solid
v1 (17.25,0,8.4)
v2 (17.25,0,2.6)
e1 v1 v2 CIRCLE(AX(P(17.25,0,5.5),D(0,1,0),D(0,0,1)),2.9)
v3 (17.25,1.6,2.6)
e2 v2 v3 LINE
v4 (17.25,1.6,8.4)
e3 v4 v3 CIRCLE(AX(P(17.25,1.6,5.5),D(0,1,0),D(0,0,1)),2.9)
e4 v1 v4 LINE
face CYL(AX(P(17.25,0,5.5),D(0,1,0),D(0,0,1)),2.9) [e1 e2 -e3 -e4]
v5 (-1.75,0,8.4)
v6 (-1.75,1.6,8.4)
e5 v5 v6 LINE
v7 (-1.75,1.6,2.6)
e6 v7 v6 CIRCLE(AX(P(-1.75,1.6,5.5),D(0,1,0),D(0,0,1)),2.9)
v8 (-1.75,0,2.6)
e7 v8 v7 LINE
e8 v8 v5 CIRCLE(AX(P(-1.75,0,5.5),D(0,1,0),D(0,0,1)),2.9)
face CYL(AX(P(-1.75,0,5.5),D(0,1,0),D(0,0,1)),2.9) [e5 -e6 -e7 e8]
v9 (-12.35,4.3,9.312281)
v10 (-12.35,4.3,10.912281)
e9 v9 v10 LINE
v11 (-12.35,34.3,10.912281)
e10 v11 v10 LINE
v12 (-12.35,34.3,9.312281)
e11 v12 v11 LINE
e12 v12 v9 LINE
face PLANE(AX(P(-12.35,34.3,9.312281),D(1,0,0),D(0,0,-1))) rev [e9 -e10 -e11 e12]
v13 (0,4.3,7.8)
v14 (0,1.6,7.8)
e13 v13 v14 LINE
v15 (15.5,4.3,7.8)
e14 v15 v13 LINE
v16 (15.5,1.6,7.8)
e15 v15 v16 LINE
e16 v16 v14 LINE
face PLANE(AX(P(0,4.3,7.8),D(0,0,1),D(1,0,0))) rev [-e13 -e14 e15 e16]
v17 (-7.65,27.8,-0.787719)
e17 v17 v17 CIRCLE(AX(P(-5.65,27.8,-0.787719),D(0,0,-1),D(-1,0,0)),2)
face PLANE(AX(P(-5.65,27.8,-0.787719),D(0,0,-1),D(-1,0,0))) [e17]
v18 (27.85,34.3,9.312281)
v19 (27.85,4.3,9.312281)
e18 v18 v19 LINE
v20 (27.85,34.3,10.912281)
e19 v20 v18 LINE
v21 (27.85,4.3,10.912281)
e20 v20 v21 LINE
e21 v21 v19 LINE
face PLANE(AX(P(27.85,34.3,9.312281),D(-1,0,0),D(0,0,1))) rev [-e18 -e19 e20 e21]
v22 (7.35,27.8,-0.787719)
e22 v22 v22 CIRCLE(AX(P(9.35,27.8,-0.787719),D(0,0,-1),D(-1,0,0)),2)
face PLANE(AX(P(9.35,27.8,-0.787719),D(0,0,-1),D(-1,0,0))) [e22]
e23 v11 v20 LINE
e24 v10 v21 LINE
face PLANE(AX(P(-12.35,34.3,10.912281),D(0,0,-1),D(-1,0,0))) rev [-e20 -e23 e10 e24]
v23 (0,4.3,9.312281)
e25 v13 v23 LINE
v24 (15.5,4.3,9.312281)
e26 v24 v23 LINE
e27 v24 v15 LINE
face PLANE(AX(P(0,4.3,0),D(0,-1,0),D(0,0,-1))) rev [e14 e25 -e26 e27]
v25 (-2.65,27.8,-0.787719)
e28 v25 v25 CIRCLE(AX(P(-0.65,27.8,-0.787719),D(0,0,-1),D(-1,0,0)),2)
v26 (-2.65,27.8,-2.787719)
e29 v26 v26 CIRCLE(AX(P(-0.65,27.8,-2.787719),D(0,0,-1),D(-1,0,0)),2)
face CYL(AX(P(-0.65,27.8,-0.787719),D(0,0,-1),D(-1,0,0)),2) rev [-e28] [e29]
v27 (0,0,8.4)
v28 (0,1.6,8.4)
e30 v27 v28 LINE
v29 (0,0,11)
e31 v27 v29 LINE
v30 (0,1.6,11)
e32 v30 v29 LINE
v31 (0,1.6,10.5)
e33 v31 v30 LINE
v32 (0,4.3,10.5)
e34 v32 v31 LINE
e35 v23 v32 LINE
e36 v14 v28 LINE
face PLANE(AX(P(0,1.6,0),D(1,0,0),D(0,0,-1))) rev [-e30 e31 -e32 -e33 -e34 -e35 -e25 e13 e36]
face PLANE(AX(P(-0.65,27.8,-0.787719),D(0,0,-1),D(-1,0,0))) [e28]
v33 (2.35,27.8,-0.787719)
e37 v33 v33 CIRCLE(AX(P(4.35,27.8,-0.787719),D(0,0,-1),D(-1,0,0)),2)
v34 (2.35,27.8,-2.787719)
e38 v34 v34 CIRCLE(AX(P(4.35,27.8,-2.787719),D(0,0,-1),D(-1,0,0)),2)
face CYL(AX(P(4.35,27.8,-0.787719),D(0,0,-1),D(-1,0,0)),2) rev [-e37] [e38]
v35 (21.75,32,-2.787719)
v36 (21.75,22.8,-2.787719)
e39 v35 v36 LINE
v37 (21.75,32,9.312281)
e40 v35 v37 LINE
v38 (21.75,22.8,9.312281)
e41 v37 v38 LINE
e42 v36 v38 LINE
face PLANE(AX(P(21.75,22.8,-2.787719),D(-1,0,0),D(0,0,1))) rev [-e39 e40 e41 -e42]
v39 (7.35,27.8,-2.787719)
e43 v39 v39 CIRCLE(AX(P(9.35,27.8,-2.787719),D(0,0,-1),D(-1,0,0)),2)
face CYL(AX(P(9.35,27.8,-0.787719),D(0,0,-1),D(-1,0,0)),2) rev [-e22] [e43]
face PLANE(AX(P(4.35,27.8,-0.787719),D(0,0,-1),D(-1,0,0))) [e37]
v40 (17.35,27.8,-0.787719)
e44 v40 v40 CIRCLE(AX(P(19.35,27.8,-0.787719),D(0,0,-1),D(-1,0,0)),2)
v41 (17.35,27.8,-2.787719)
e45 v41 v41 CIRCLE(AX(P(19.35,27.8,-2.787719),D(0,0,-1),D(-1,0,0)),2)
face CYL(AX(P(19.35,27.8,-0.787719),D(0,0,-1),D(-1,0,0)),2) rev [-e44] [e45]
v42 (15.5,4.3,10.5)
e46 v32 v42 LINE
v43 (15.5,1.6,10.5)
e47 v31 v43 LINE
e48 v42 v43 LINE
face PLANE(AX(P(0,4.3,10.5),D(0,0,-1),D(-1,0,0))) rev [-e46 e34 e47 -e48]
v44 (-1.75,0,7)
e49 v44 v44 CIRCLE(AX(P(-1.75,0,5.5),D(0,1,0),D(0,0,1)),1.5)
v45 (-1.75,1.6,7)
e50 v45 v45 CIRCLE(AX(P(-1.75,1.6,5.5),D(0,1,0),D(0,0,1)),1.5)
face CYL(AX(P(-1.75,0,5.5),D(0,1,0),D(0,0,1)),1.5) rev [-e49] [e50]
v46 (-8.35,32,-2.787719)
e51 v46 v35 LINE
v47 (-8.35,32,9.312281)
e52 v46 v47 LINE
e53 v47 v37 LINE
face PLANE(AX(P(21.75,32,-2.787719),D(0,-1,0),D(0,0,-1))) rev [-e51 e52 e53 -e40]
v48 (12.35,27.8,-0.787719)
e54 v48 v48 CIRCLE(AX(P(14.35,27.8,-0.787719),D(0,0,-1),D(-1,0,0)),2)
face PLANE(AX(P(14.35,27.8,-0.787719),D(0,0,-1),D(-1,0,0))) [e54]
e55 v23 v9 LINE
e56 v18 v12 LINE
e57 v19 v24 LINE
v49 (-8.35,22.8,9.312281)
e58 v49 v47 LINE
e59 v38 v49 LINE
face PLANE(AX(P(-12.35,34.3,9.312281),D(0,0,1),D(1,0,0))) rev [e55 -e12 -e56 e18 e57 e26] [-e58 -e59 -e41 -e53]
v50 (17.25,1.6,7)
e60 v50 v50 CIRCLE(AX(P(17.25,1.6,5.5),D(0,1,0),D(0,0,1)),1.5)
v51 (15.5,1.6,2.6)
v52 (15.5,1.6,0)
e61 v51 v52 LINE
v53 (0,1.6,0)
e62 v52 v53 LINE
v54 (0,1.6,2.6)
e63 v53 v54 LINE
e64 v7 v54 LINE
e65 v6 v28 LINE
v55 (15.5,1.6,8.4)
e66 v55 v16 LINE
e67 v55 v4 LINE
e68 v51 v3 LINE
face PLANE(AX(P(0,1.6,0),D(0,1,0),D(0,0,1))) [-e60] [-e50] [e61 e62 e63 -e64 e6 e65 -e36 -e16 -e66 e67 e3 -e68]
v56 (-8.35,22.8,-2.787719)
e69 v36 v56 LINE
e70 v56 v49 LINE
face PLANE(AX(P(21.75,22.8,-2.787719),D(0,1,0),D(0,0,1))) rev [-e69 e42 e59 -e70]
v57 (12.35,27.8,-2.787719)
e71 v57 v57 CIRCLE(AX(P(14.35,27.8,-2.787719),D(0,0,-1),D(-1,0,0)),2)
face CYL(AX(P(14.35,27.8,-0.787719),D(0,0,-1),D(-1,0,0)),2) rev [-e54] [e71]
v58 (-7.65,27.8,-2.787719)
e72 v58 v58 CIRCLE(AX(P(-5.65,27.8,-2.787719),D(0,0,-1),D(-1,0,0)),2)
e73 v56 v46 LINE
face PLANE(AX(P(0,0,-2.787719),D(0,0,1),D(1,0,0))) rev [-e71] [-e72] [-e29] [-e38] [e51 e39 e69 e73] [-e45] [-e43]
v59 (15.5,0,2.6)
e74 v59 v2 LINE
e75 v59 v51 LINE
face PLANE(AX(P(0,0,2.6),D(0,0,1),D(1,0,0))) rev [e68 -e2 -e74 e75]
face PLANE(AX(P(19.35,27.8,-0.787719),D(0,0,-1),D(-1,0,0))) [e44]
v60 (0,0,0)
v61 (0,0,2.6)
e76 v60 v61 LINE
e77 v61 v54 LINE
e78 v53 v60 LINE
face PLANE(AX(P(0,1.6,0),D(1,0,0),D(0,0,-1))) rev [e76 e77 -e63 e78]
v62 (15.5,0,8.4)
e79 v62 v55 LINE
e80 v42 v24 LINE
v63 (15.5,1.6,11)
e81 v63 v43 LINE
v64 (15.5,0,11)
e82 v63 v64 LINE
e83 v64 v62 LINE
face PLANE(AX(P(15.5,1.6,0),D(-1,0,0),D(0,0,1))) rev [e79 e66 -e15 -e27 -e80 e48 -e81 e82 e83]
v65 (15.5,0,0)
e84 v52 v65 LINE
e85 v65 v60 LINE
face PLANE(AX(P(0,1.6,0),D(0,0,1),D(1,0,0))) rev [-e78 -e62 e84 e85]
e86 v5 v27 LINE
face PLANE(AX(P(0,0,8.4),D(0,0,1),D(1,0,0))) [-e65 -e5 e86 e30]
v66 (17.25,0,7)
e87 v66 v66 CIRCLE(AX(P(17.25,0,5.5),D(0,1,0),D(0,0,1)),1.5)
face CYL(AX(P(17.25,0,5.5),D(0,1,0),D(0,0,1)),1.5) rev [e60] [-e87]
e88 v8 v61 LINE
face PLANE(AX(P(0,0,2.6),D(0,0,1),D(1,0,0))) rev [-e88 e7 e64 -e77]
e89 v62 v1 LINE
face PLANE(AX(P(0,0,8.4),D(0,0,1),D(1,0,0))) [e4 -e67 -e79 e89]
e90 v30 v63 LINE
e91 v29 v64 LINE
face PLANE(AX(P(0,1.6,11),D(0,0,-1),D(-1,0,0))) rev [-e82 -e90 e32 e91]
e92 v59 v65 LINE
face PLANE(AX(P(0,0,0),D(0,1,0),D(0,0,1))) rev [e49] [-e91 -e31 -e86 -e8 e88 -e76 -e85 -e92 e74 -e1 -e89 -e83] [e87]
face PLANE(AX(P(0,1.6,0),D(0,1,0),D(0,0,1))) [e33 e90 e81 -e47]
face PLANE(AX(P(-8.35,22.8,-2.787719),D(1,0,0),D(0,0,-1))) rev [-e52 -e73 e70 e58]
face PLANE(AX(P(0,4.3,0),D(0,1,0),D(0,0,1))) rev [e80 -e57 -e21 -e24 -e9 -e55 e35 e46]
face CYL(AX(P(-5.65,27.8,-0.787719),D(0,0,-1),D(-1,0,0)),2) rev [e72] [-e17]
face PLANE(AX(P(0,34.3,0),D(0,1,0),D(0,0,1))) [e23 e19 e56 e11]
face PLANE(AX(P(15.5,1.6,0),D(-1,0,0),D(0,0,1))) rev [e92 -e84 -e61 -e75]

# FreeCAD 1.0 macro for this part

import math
import FreeCAD as App
import Part
import Sketcher

V = App.Vector
Q = App.Units.Quantity

doc = App.newDocument("Part")
body = doc.addObject("PartDesign::Body", "Body")

# Sketch on XZ plane
sketch1 = doc.addObject("Sketcher::SketchObject", "Sketch")
body.addObject(sketch1)
sketch1.AttachmentSupport = (doc.XZ_Plane, [""])
sketch1.MapMode = "FlatFace"
sketch1.addGeometry(Part.LineSegment(V(0, 0, 0), V(0, 11, 0)), False)
sketch1.addGeometry(Part.LineSegment(V(0, 11, 0), V(16, 11, 0)), False)
sketch1.addGeometry(Part.LineSegment(V(16, 11, 0), V(16, 0, 0)), False)
sketch1.addGeometry(Part.LineSegment(V(16, 0, 0), V(0, 0, 0)), False)
sketch1.addConstraint(Sketcher.Constraint("Coincident", 0, 2, 1, 1))
sketch1.addConstraint(Sketcher.Constraint("Coincident", 1, 2, 2, 1))
sketch1.addConstraint(Sketcher.Constraint("Coincident", 2, 2, 3, 1))
sketch1.addConstraint(Sketcher.Constraint("Coincident", 3, 2, 0, 1))
sketch1.addConstraint(Sketcher.Constraint("Vertical", 0))
sketch1.addConstraint(Sketcher.Constraint("Horizontal", 1))
sketch1.addConstraint(Sketcher.Constraint("Vertical", 2))
sketch1.addConstraint(Sketcher.Constraint("Horizontal", 3))
sketch1.addConstraint(Sketcher.Constraint("Coincident", 3, 2, -1, 1))
sketch1.addConstraint(Sketcher.Constraint("DistanceY", 0, 1, 0, 2, Q("11 mm")))
sketch1.addConstraint(Sketcher.Constraint("DistanceX", 1, 1, 1, 2, Q("15.5 mm")))
pad1 = doc.addObject("PartDesign::Pad", "Pad")
body.addObject(pad1)
pad1.Profile = sketch1
pad1.Length = 1.6
pad1.Reversed = True

# Sketch on XZ plane
sketch2 = doc.addObject("Sketcher::SketchObject", "Sketch001")
body.addObject(sketch2)
sketch2.AttachmentSupport = (doc.XZ_Plane, [""])
sketch2.MapMode = "FlatFace"
sketch2.AttachmentOffset = App.Placement(V(0, 0, -1.6), App.Rotation())
sketch2.addGeometry(Part.ArcOfCircle(Part.Circle(V(-1.8, 5.5, 0), V(0, 0, 1), 2.9), math.radians(90), math.radians(270)), False)
sketch2.addGeometry(Part.LineSegment(V(-1.8, 8.4, 0), V(0, 8.4, 0)), False)
sketch2.addGeometry(Part.LineSegment(V(0, 8.4, 0), V(0, 2.6, 0)), False)
sketch2.addGeometry(Part.LineSegment(V(0, 2.6, 0), V(-1.8, 2.6, 0)), False)
sketch2.addGeometry(Part.ArcOfCircle(Part.Circle(V(-1.8, 5.5, 0), V(0, 0, 1), 1.5), math.radians(90), math.radians(270)), False)
sketch2.addGeometry(Part.ArcOfCircle(Part.Circle(V(-1.7, 5.5, 0), V(0, 0, 1), 1.5), math.radians(-90), math.radians(0)), False)
sketch2.addGeometry(Part.ArcOfCircle(Part.Circle(V(-1.7, 5.5, 0), V(0, 0, 1), 1.5), math.radians(0), math.radians(90)), False)
sketch2.addGeometry(Part.ArcOfCircle(Part.Circle(V(17.2, 5.5, 0), V(0, 0, 1), 2.9), math.radians(-90), math.radians(0)), False)
sketch2.addGeometry(Part.LineSegment(V(17.2, 2.6, 0), V(15.5, 2.6, 0)), False)
sketch2.addGeometry(Part.LineSegment(V(15.5, 2.6, 0), V(15.5, 8.4, 0)), False)
sketch2.addGeometry(Part.LineSegment(V(15.5, 8.4, 0), V(17.2, 8.4, 0)), False)
sketch2.addGeometry(Part.ArcOfCircle(Part.Circle(V(17.2, 5.5, 0), V(0, 0, 1), 2.9), math.radians(0), math.radians(90)), False)
sketch2.addGeometry(Part.ArcOfCircle(Part.Circle(V(17.3, 5.5, 0), V(0, 0, 1), 1.5), math.radians(-90), math.radians(0)), False)
sketch2.addGeometry(Part.ArcOfCircle(Part.Circle(V(17.3, 5.5, 0), V(0, 0, 1), 1.5), math.radians(0), math.radians(90)), False)
sketch2.addGeometry(Part.ArcOfCircle(Part.Circle(V(17.2, 5.5, 0), V(0, 0, 1), 1.5), math.radians(90), math.radians(270)), False)
sketch2.addConstraint(Sketcher.Constraint("Tangent", 0, 1, 1, 1))
sketch2.addConstraint(Sketcher.Constraint("Coincident", 1, 2, 2, 1))
sketch2.addConstraint(Sketcher.Constraint("Coincident", 2, 2, 3, 1))
sketch2.addConstraint(Sketcher.Constraint("Tangent", 3, 2, 0, 2))
sketch2.addConstraint(Sketcher.Constraint("Tangent", 4, 2, 5, 1))
sketch2.addConstraint(Sketcher.Constraint("Tangent", 5, 2, 6, 1))
sketch2.addConstraint(Sketcher.Constraint("Tangent", 6, 2, 4, 1))
sketch2.addConstraint(Sketcher.Constraint("Tangent", 7, 1, 8, 1))
sketch2.addConstraint(Sketcher.Constraint("Coincident", 8, 2, 9, 1))
sketch2.addConstraint(Sketcher.Constraint("Coincident", 9, 2, 10, 1))
sketch2.addConstraint(Sketcher.Constraint("Tangent", 10, 2, 11, 2))
sketch2.addConstraint(Sketcher.Constraint("Tangent", 11, 1, 7, 2))
sketch2.addConstraint(Sketcher.Constraint("Tangent", 12, 2, 13, 1))
sketch2.addConstraint(Sketcher.Constraint("Tangent", 13, 2, 14, 1))
sketch2.addConstraint(Sketcher.Constraint("Tangent", 14, 2, 12, 1))
sketch2.addConstraint(Sketcher.Constraint("Horizontal", 1))
sketch2.addConstraint(Sketcher.Constraint("Vertical", 2))
sketch2.addConstraint(Sketcher.Constraint("Horizontal", 3))
sketch2.addConstraint(Sketcher.Constraint("Horizontal", 8))
sketch2.addConstraint(Sketcher.Constraint("Vertical", 9))
sketch2.addConstraint(Sketcher.Constraint("Horizontal", 10))
sketch2.addConstraint(Sketcher.Constraint("Coincident", 4, 3, 0, 3))
sketch2.addConstraint(Sketcher.Constraint("Coincident", 12, 3, 7, 3))
sketch2.addConstraint(Sketcher.Constraint("Equal", 0, 7))
sketch2.addConstraint(Sketcher.Constraint("Equal", 7, 11))
sketch2.addConstraint(Sketcher.Constraint("Equal", 6, 12))
sketch2.addConstraint(Sketcher.Constraint("PointOnObject", 1, 2, -2))
sketch2.addConstraint(Sketcher.Constraint("Horizontal", 6, 3, 7, 3))
sketch2.addConstraint(Sketcher.Constraint("Horizontal", 14, 3, 5, 2))
sketch2.addConstraint(Sketcher.Constraint("Horizontal", 5, 2, 11, 1))
sketch2.addConstraint(Sketcher.Constraint("Horizontal", 11, 1, 12, 2))
sketch2.addConstraint(Sketcher.Constraint("Vertical", 3, 2, 4, 2))
sketch2.addConstraint(Sketcher.Constraint("Vertical", 4, 2, 6, 2))
sketch2.addConstraint(Sketcher.Constraint("Vertical", 10, 2, 13, 2))
sketch2.addConstraint(Sketcher.Constraint("Vertical", 13, 2, 14, 2))
sketch2.addConstraint(Sketcher.Constraint("Equal", 3, 8))
sketch2.addConstraint(Sketcher.Constraint("Radius", 0, Q("2.9 mm")))
sketch2.addConstraint(Sketcher.Constraint("Radius", 4, Q("1.5 mm")))
sketch2.addConstraint(Sketcher.Constraint("DistanceY", -1, 1, 4, 2, Q("4 mm")))
sketch2.addConstraint(Sketcher.Constraint("DistanceX", 5, 3, 7, 3, Q("19 mm")))
sketch2.addConstraint(Sketcher.Constraint("DistanceX", 1, 1, 1, 2, Q("1.75 mm")))
pad2 = doc.addObject("PartDesign::Pad", "Pad001")
body.addObject(pad2)
pad2.Profile = sketch2
pad2.Type = "UpToLast"

# Sketch on XZ plane
sketch3 = doc.addObject("Sketcher::SketchObject", "Sketch002")
body.addObject(sketch3)
sketch3.AttachmentSupport = (doc.XZ_Plane, [""])
sketch3.MapMode = "FlatFace"
sketch3.AttachmentOffset = App.Placement(V(0, 0, -1.6), App.Rotation())
sketch3.addGeometry(Part.LineSegment(V(0, 7.8, 0), V(0, 10.5, 0)), False)
sketch3.addGeometry(Part.LineSegment(V(0, 10.5, 0), V(15.5, 10.5, 0)), False)
sketch3.addGeometry(Part.LineSegment(V(15.5, 10.5, 0), V(15.5, 7.8, 0)), False)
sketch3.addGeometry(Part.LineSegment(V(15.5, 7.8, 0), V(0, 7.8, 0)), False)
sketch3.addConstraint(Sketcher.Constraint("Coincident", 0, 2, 1, 1))
sketch3.addConstraint(Sketcher.Constraint("Coincident", 1, 2, 2, 1))
sketch3.addConstraint(Sketcher.Constraint("Coincident", 2, 2, 3, 1))
sketch3.addConstraint(Sketcher.Constraint("Coincident", 3, 2, 0, 1))
sketch3.addConstraint(Sketcher.Constraint("Vertical", 0))
sketch3.addConstraint(Sketcher.Constraint("Horizontal", 1))
sketch3.addConstraint(Sketcher.Constraint("Vertical", 2))
sketch3.addConstraint(Sketcher.Constraint("Horizontal", 3))
sketch3.addConstraint(Sketcher.Constraint("PointOnObject", 0, 2, -2))
sketch3.addConstraint(Sketcher.Constraint("DistanceX", 1, 1, 1, 2, Q("15.5 mm")))
sketch3.addConstraint(Sketcher.Constraint("DistanceY", 0, 1, 0, 2, Q("2.7 mm")))
sketch3.addConstraint(Sketcher.Constraint("DistanceY", -1, 1, 0, 2, Q("10.5 mm")))
pad3 = doc.addObject("PartDesign::Pad", "Pad002")
body.addObject(pad3)
pad3.Profile = sketch3
pad3.Length = 2.7
pad3.Reversed = True

# Sketch on XZ plane
sketch4 = doc.addObject("Sketcher::SketchObject", "Sketch003")
body.addObject(sketch4)
sketch4.AttachmentSupport = (doc.XZ_Plane, [""])
sketch4.MapMode = "FlatFace"
sketch4.AttachmentOffset = App.Placement(V(0, 0, -4.3), App.Rotation())
sketch4.addGeometry(Part.LineSegment(V(-12.3, 9.3, 0), V(-12.3, 10.9, 0)), False)
sketch4.addGeometry(Part.LineSegment(V(-12.3, 10.9, 0), V(27.9, 10.9, 0)), False)
sketch4.addGeometry(Part.LineSegment(V(27.9, 10.9, 0), V(27.9, 9.3, 0)), False)
sketch4.addGeometry(Part.LineSegment(V(27.9, 9.3, 0), V(-12.3, 9.3, 0)), False)
sketch4.addConstraint(Sketcher.Constraint("Coincident", 0, 2, 1, 1))
sketch4.addConstraint(Sketcher.Constraint("Coincident", 1, 2, 2, 1))
sketch4.addConstraint(Sketcher.Constraint("Coincident", 2, 2, 3, 1))
sketch4.addConstraint(Sketcher.Constraint("Coincident", 3, 2, 0, 1))
sketch4.addConstraint(Sketcher.Constraint("Vertical", 0))
sketch4.addConstraint(Sketcher.Constraint("Horizontal", 1))
sketch4.addConstraint(Sketcher.Constraint("Vertical", 2))
sketch4.addConstraint(Sketcher.Constraint("Horizontal", 3))
sketch4.addConstraint(Sketcher.Constraint("DistanceX", 1, 1, 1, 2, Q("40.2 mm")))
sketch4.addConstraint(Sketcher.Constraint("DistanceY", 0, 1, 0, 2, Q("1.6 mm")))
sketch4.addConstraint(Sketcher.Constraint("DistanceX", 0, 2, -1, 1, Q("12.35 mm")))
sketch4.addConstraint(Sketcher.Constraint("DistanceY", -1, 1, 0, 2, Q("10.912281 mm")))
pad4 = doc.addObject("PartDesign::Pad", "Pad003")
body.addObject(pad4)
pad4.Profile = sketch4
pad4.Length = 30
pad4.Reversed = True

# Sketch on XY plane
sketch5 = doc.addObject("Sketcher::SketchObject", "Sketch004")
body.addObject(sketch5)
sketch5.AttachmentSupport = (doc.XY_Plane, [""])
sketch5.MapMode = "FlatFace"
sketch5.AttachmentOffset = App.Placement(V(0, 0, 9.312281), App.Rotation())
sketch5.addGeometry(Part.LineSegment(V(22, 32, 0), V(22, 23, 0)), False)
sketch5.addGeometry(Part.LineSegment(V(22, 23, 0), V(-8, 23, 0)), False)
sketch5.addGeometry(Part.LineSegment(V(-8, 23, 0), V(-8, 32, 0)), False)
sketch5.addGeometry(Part.LineSegment(V(-8, 32, 0), V(22, 32, 0)), False)
sketch5.addConstraint(Sketcher.Constraint("Coincident", 0, 2, 1, 1))
sketch5.addConstraint(Sketcher.Constraint("Coincident", 1, 2, 2, 1))
sketch5.addConstraint(Sketcher.Constraint("Coincident", 2, 2, 3, 1))
sketch5.addConstraint(Sketcher.Constraint("Coincident", 3, 2, 0, 1))
sketch5.addConstraint(Sketcher.Constraint("Vertical", 0))
sketch5.addConstraint(Sketcher.Constraint("Horizontal", 1))
sketch5.addConstraint(Sketcher.Constraint("Vertical", 2))
sketch5.addConstraint(Sketcher.Constraint("Horizontal", 3))
sketch5.addConstraint(Sketcher.Constraint("DistanceX", 1, 2, 1, 1, Q("30.1 mm")))
sketch5.addConstraint(Sketcher.Constraint("DistanceY", 0, 2, 0, 1, Q("9.2 mm")))
sketch5.addConstraint(Sketcher.Constraint("DistanceY", -1, 1, 2, 2, Q("32 mm")))
sketch5.addConstraint(Sketcher.Constraint("DistanceX", -1, 1, 0, 2, Q("21.75 mm")))
pad5 = doc.addObject("PartDesign::Pad", "Pad004")
body.addObject(pad5)
pad5.Profile = sketch5
pad5.Length = 12.1
pad5.Reversed = True

# Sketch on XY plane
sketch6 = doc.addObject("Sketcher::SketchObject", "Sketch005")
body.addObject(sketch6)
sketch6.AttachmentSupport = (doc.XY_Plane, [""])
sketch6.MapMode = "FlatFace"
sketch6.AttachmentOffset = App.Placement(V(0, 0, -2.787719), App.Rotation())
sketch6.addGeometry(Part.Circle(V(19.4, 27.8, 0), V(0, 0, 1), 2), False)
sketch6.addConstraint(Sketcher.Constraint("Diameter", 0, Q("4 mm")))
sketch6.addConstraint(Sketcher.Constraint("DistanceY", -1, 1, 0, 3, Q("27.8 mm")))
sketch6.addConstraint(Sketcher.Constraint("DistanceX", -1, 1, 0, 3, Q("19.35 mm")))
pocket1 = doc.addObject("PartDesign::Pocket", "Pocket")
body.addObject(pocket1)
pocket1.Profile = sketch6
pocket1.Length = 2
pocket1.Reversed = True
doc.recompute()

linearpattern = doc.addObject("PartDesign::LinearPattern", "LinearPattern")
body.addObject(linearpattern)
linearpattern.Originals = [pocket1]
linearpattern.Direction = (doc.X_Axis, [""])
linearpattern.Mode = "offset"
linearpattern.Offset = 5
linearpattern.Occurrences = 6
linearpattern.Reversed = True
body.Tip = linearpattern

doc.recompute()
